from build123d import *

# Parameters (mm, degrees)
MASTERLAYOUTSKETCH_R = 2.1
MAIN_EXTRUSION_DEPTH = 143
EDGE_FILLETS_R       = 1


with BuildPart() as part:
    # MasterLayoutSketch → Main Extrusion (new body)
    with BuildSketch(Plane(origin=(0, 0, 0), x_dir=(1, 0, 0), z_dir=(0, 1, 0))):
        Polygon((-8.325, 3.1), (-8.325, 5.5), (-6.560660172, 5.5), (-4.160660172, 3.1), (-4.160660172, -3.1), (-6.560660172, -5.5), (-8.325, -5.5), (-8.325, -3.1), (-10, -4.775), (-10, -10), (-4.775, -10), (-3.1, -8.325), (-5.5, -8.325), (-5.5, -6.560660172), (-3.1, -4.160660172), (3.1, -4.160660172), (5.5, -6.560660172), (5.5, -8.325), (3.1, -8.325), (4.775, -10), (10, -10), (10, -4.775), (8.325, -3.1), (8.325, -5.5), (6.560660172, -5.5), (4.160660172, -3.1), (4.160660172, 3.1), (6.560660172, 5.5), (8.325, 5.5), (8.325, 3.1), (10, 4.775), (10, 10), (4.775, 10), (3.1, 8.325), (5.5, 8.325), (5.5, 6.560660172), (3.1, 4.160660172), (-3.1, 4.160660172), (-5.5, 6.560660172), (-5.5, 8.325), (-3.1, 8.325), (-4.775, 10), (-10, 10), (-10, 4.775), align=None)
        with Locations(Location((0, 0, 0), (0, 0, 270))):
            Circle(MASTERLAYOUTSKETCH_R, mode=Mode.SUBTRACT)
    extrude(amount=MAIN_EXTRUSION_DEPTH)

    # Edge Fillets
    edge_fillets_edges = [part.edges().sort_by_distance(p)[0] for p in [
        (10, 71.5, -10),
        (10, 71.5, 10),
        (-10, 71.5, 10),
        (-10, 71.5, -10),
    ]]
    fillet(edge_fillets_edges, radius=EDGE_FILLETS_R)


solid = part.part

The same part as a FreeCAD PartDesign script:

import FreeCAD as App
import Part
import Sketcher

V = App.Vector
Q = App.Units.Quantity


def edges_at(feature, points):
    """Names of the edges that pass closest to the given points."""
    edges = feature.Shape.Edges
    near = lambda p: min(range(len(edges)), key=lambda i: edges[i].distToShape(Part.Vertex(*p))[0])
    return sorted({f"Edge{near(p) + 1}" for p in points})


def add_polygon(sketch, points):
    """Adds a closed chain of lines whose ends are joined by coincident constraints."""
    first, n = sketch.GeometryCount, len(points)
    for a, b in zip(points, points[1:] + points[:1]):
        sketch.addGeometry(Part.LineSegment(App.Vector(*a, 0), App.Vector(*b, 0)), False)
    for i in range(n):
        sketch.addConstraint(Sketcher.Constraint("Coincident", first + i, 2, first + (i + 1) % n, 1))

doc = App.newDocument("Part")
body = doc.addObject("PartDesign::Body", "Body")

# Sketch on XZ plane
sketch1 = body.newObject("Sketcher::SketchObject", "Sketch")
sketch1.AttachmentSupport = (doc.getObject("XZ_Plane"), [""])
sketch1.MapMode = "FlatFace"
add_polygon(sketch1, [(-8.3, -3.1), (-8.3, -5.5), (-6.6, -5.5), (-4.2, -3.1), (-4.2, 3.1), (-6.6, 5.5), (-8.3, 5.5), (-8.3, 3.1), (-10, 4.8), (-10, 10), (-4.8, 10), (-3.1, 8.3), (-5.5, 8.3), (-5.5, 6.6), (-3.1, 4.2), (3.1, 4.2), (5.5, 6.6), (5.5, 8.3), (3.1, 8.3), (4.8, 10), (10, 10), (10, 4.8), (8.3, 3.1), (8.3, 5.5), (6.6, 5.5), (4.2, 3.1), (4.2, -3.1), (6.6, -5.5), (8.3, -5.5), (8.3, -3.1), (10, -4.8), (10, -10), (4.8, -10), (3.1, -8.3), (5.5, -8.3), (5.5, -6.6), (3.1, -4.2), (-3.1, -4.2), (-5.5, -6.6), (-5.5, -8.3), (-3.1, -8.3), (-4.8, -10), (-10, -10), (-10, -4.8)])  # lines 0-43
sketch1.addGeometry(Part.Circle(V(0, 0, 0), V(0, 0, 1), 2.1), False)  # 44
sketch1.addConstraint(Sketcher.Constraint("Vertical", 0))
sketch1.addConstraint(Sketcher.Constraint("Horizontal", 1))
sketch1.addConstraint(Sketcher.Constraint("Vertical", 3))
sketch1.addConstraint(Sketcher.Constraint("Horizontal", 5))
sketch1.addConstraint(Sketcher.Constraint("Vertical", 6))
sketch1.addConstraint(Sketcher.Constraint("Vertical", 8))
sketch1.addConstraint(Sketcher.Constraint("Horizontal", 9))
sketch1.addConstraint(Sketcher.Constraint("Horizontal", 11))
sketch1.addConstraint(Sketcher.Constraint("Vertical", 12))
sketch1.addConstraint(Sketcher.Constraint("Horizontal", 14))
sketch1.addConstraint(Sketcher.Constraint("Vertical", 16))
sketch1.addConstraint(Sketcher.Constraint("Horizontal", 17))
sketch1.addConstraint(Sketcher.Constraint("Horizontal", 19))
sketch1.addConstraint(Sketcher.Constraint("Vertical", 20))
sketch1.addConstraint(Sketcher.Constraint("Vertical", 22))
sketch1.addConstraint(Sketcher.Constraint("Horizontal", 23))
sketch1.addConstraint(Sketcher.Constraint("Vertical", 25))
sketch1.addConstraint(Sketcher.Constraint("Horizontal", 27))
sketch1.addConstraint(Sketcher.Constraint("Vertical", 28))
sketch1.addConstraint(Sketcher.Constraint("Vertical", 30))
sketch1.addConstraint(Sketcher.Constraint("Horizontal", 31))
sketch1.addConstraint(Sketcher.Constraint("Horizontal", 33))
sketch1.addConstraint(Sketcher.Constraint("Vertical", 34))
sketch1.addConstraint(Sketcher.Constraint("Horizontal", 36))
sketch1.addConstraint(Sketcher.Constraint("Vertical", 38))
sketch1.addConstraint(Sketcher.Constraint("Horizontal", 39))
sketch1.addConstraint(Sketcher.Constraint("Horizontal", 41))
sketch1.addConstraint(Sketcher.Constraint("Vertical", 42))
sketch1.addConstraint(Sketcher.Constraint("Coincident", 44, 3, -1, 1))
sketch1.addConstraint(Sketcher.Constraint("Symmetric", 0, 2, 22, 2, -1, 1))
sketch1.addConstraint(Sketcher.Constraint("Symmetric", 2, 2, 24, 2, -1, 1))
sketch1.addConstraint(Sketcher.Constraint("Symmetric", 4, 2, 26, 2, -1, 1))
sketch1.addConstraint(Sketcher.Constraint("Symmetric", 6, 2, 28, 2, -1, 1))
sketch1.addConstraint(Sketcher.Constraint("Symmetric", 7, 2, 29, 2, -1, 1))
sketch1.addConstraint(Sketcher.Constraint("Symmetric", 9, 2, 31, 2, -1, 1))
sketch1.addConstraint(Sketcher.Constraint("Symmetric", 10, 2, 32, 2, -1, 1))
sketch1.addConstraint(Sketcher.Constraint("Symmetric", 12, 2, 34, 2, -1, 1))
sketch1.addConstraint(Sketcher.Constraint("Symmetric", 13, 2, 35, 2, -1, 1))
sketch1.addConstraint(Sketcher.Constraint("Symmetric", 15, 2, 37, 2, -1, 1))
sketch1.addConstraint(Sketcher.Constraint("Symmetric", 17, 2, 39, 2, -1, 1))
sketch1.addConstraint(Sketcher.Constraint("Symmetric", 18, 2, 40, 2, -1, 1))
sketch1.addConstraint(Sketcher.Constraint("Symmetric", 20, 2, 42, 2, -1, 1))
sketch1.addConstraint(Sketcher.Constraint("Symmetric", 12, 2, 15, 2, -2))
sketch1.addConstraint(Sketcher.Constraint("Symmetric", 10, 2, 17, 2, -2))
sketch1.addConstraint(Sketcher.Constraint("Symmetric", 9, 2, 18, 2, -2))
sketch1.addConstraint(Sketcher.Constraint("Symmetric", 7, 2, 20, 2, -2))
sketch1.addConstraint(Sketcher.Constraint("Symmetric", 6, 2, 21, 2, -2))
sketch1.addConstraint(Sketcher.Constraint("Symmetric", 4, 2, 23, 2, -2))
sketch1.addConstraint(Sketcher.Constraint("Perpendicular", 2, 4))
sketch1.addConstraint(Sketcher.Constraint("Parallel", 4, 7))
sketch1.addConstraint(Sketcher.Constraint("Parallel", 7, 10))
sketch1.addConstraint(Sketcher.Constraint("Parallel", 10, 13))
sketch1.addConstraint(Sketcher.Constraint("Perpendicular", 13, 15))
sketch1.addConstraint(Sketcher.Constraint("Parallel", 15, 18))
sketch1.addConstraint(Sketcher.Constraint("Parallel", 21, 24))
sketch1.addConstraint(Sketcher.Constraint("Perpendicular", 24, 26))
sketch1.addConstraint(Sketcher.Constraint("Perpendicular", 35, 37))
sketch1.addConstraint(Sketcher.Constraint("Parallel", 40, 43))
sketch1.addConstraint(Sketcher.Constraint("Horizontal", 3, 2, 6, 2))
sketch1.addConstraint(Sketcher.Constraint("Vertical", 10, 2, 13, 2))
sketch1.addConstraint(Sketcher.Constraint("Equal", 39, 0))
sketch1.addConstraint(Sketcher.Constraint("Equal", 36, 3))
sketch1.addConstraint(Sketcher.Constraint("Equal", 41, 8))
sketch1.addConstraint(Sketcher.Constraint("Equal", 27, 12))
sketch1.addConstraint(Sketcher.Constraint("Equal", 7, 10))
sketch1.addConstraint(Sketcher.Constraint("Diameter", 44, Q("4.2 mm")))
sketch1.addConstraint(Sketcher.Constraint("DistanceX", 11, 2, 11, 1, Q("2.4 mm")))
sketch1.addConstraint(Sketcher.Constraint("DistanceX", 14, 1, 14, 2, Q("6.2 mm")))
sketch1.addConstraint(Sketcher.Constraint("DistanceX", 7, 2, -1, 1, Q("10 mm")))
sketch1.addConstraint(Sketcher.Constraint("DistanceX", 9, 1, 9, 2, Q("5.225 mm")))
sketch1.addConstraint(Sketcher.Constraint("DistanceX", 1, 1, 1, 2, Q("1.76434 mm")))
pad1 = body.newObject("PartDesign::Pad", "Pad")
pad1.Profile = sketch1
pad1.Length = 143
pad1.Reversed = True
doc.recompute()

fillet = body.newObject("PartDesign::Fillet", "Fillet")
fillet.Base = (pad1, edges_at(pad1, [
    (10, 71.5, -10),
    (10, 71.5, 10),
    (-10, 71.5, 10),
    (-10, 71.5, -10),
]))
fillet.Radius = 1

doc.recompute()
